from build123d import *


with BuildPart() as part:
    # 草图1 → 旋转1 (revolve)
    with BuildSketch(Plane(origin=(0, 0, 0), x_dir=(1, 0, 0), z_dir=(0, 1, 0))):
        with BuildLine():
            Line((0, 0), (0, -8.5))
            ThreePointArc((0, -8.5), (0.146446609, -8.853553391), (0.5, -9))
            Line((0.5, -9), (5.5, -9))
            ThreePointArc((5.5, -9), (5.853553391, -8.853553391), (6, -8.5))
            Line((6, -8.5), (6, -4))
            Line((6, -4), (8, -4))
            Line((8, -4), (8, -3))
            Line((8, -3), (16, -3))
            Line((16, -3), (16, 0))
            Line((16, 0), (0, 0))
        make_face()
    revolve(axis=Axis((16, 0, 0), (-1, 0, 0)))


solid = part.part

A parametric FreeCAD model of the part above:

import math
import FreeCAD as App
import Part
import Sketcher

V = App.Vector
Q = App.Units.Quantity

doc = App.newDocument("Part")
params = doc.addObject("Spreadsheet::Sheet", "Params")
for row, (alias, value) in enumerate([
    ("sketch1_radius", "0.5 mm"),
    ("sketch1_width", "5 mm"),
    ("sketch1_width2", "2 mm"),
    ("sketch1_width3", "8 mm"),
    ("sketch1_height", "1 mm"),
    ("revolution_angle", "360 deg"),
], start=1):
    params.set(f"A{row}", alias)
    params.set(f"B{row}", "=" + value)
    params.setAlias(f"B{row}", alias)

body = doc.addObject("PartDesign::Body", "Body")

sketch1 = body.newObject("Sketcher::SketchObject", "Sketch")
sketch1.AttachmentSupport = (doc.getObject("XZ_Plane"), [""])
sketch1.MapMode = "FlatFace"
sketch1.addGeometry([
    Part.LineSegment(V(0, 0, 0), V(0, 8.5, 0)),
    Part.ArcOfCircle(Part.Circle(V(0.5, 8.5, 0), V(0, 0, 1), 0.5), math.radians(90), math.radians(180)),
    Part.LineSegment(V(0.5, 9, 0), V(5.5, 9, 0)),
    Part.ArcOfCircle(Part.Circle(V(5.5, 8.5, 0), V(0, 0, 1), 0.5), math.radians(0), math.radians(90)),
    Part.LineSegment(V(6, 8.5, 0), V(6, 4, 0)),
    Part.LineSegment(V(6, 4, 0), V(8, 4, 0)),
    Part.LineSegment(V(8, 4, 0), V(8, 3, 0)),
    Part.LineSegment(V(8, 3, 0), V(16, 3, 0)),
    Part.LineSegment(V(16, 3, 0), V(16, 0, 0)),
    Part.LineSegment(V(16, 0, 0), V(0, 0, 0)),
], False)
sketch1.addConstraint([
    Sketcher.Constraint("Tangent", 0, 2, 1, 2),
    Sketcher.Constraint("Tangent", 1, 1, 2, 1),
    Sketcher.Constraint("Tangent", 2, 2, 3, 2),
    Sketcher.Constraint("Tangent", 3, 1, 4, 1),
    Sketcher.Constraint("Coincident", 4, 2, 5, 1),
    Sketcher.Constraint("Coincident", 5, 2, 6, 1),
    Sketcher.Constraint("Coincident", 6, 2, 7, 1),
    Sketcher.Constraint("Coincident", 7, 2, 8, 1),
    Sketcher.Constraint("Coincident", 8, 2, 9, 1),
    Sketcher.Constraint("Coincident", 9, 2, 0, 1),
    Sketcher.Constraint("Vertical", 0),
    Sketcher.Constraint("Horizontal", 2),
    Sketcher.Constraint("Vertical", 4),
    Sketcher.Constraint("Horizontal", 5),
    Sketcher.Constraint("Vertical", 6),
    Sketcher.Constraint("Horizontal", 7),
    Sketcher.Constraint("Vertical", 8),
    Sketcher.Constraint("Horizontal", 9),
    Sketcher.Constraint("Coincident", 9, 2, -1, 1),
    Sketcher.Constraint("Equal", 1, 3),
    Sketcher.Constraint("Radius", 1, Q("0.5 mm")),
    Sketcher.Constraint("DistanceX", 2, 1, 2, 2, Q("5 mm")),
    Sketcher.Constraint("DistanceX", 5, 1, 5, 2, Q("2 mm")),
    Sketcher.Constraint("DistanceX", 7, 1, 7, 2, Q("8 mm")),
    Sketcher.Constraint("DistanceY", 6, 2, 6, 1, Q("1 mm")),
    Sketcher.Constraint("DistanceY", 8, 2, 8, 1, Q("3 mm")),
    Sketcher.Constraint("DistanceY", 0, 1, 0, 2, Q("8.5 mm")),
])
sketch1.setExpression("Constraints[20]", "Params.sketch1_radius")
sketch1.setExpression("Constraints[21]", "Params.sketch1_width")
sketch1.setExpression("Constraints[22]", "Params.sketch1_width2")
sketch1.setExpression("Constraints[23]", "Params.sketch1_width3")
sketch1.setExpression("Constraints[24]", "Params.sketch1_height")
revolution = body.newObject("PartDesign::Revolution", "Revolution")
revolution.Profile = sketch1
revolution.ReferenceAxis = (sketch1, ["H_Axis"])
revolution.setExpression("Angle", "Params.revolution_angle")

doc.recompute()
